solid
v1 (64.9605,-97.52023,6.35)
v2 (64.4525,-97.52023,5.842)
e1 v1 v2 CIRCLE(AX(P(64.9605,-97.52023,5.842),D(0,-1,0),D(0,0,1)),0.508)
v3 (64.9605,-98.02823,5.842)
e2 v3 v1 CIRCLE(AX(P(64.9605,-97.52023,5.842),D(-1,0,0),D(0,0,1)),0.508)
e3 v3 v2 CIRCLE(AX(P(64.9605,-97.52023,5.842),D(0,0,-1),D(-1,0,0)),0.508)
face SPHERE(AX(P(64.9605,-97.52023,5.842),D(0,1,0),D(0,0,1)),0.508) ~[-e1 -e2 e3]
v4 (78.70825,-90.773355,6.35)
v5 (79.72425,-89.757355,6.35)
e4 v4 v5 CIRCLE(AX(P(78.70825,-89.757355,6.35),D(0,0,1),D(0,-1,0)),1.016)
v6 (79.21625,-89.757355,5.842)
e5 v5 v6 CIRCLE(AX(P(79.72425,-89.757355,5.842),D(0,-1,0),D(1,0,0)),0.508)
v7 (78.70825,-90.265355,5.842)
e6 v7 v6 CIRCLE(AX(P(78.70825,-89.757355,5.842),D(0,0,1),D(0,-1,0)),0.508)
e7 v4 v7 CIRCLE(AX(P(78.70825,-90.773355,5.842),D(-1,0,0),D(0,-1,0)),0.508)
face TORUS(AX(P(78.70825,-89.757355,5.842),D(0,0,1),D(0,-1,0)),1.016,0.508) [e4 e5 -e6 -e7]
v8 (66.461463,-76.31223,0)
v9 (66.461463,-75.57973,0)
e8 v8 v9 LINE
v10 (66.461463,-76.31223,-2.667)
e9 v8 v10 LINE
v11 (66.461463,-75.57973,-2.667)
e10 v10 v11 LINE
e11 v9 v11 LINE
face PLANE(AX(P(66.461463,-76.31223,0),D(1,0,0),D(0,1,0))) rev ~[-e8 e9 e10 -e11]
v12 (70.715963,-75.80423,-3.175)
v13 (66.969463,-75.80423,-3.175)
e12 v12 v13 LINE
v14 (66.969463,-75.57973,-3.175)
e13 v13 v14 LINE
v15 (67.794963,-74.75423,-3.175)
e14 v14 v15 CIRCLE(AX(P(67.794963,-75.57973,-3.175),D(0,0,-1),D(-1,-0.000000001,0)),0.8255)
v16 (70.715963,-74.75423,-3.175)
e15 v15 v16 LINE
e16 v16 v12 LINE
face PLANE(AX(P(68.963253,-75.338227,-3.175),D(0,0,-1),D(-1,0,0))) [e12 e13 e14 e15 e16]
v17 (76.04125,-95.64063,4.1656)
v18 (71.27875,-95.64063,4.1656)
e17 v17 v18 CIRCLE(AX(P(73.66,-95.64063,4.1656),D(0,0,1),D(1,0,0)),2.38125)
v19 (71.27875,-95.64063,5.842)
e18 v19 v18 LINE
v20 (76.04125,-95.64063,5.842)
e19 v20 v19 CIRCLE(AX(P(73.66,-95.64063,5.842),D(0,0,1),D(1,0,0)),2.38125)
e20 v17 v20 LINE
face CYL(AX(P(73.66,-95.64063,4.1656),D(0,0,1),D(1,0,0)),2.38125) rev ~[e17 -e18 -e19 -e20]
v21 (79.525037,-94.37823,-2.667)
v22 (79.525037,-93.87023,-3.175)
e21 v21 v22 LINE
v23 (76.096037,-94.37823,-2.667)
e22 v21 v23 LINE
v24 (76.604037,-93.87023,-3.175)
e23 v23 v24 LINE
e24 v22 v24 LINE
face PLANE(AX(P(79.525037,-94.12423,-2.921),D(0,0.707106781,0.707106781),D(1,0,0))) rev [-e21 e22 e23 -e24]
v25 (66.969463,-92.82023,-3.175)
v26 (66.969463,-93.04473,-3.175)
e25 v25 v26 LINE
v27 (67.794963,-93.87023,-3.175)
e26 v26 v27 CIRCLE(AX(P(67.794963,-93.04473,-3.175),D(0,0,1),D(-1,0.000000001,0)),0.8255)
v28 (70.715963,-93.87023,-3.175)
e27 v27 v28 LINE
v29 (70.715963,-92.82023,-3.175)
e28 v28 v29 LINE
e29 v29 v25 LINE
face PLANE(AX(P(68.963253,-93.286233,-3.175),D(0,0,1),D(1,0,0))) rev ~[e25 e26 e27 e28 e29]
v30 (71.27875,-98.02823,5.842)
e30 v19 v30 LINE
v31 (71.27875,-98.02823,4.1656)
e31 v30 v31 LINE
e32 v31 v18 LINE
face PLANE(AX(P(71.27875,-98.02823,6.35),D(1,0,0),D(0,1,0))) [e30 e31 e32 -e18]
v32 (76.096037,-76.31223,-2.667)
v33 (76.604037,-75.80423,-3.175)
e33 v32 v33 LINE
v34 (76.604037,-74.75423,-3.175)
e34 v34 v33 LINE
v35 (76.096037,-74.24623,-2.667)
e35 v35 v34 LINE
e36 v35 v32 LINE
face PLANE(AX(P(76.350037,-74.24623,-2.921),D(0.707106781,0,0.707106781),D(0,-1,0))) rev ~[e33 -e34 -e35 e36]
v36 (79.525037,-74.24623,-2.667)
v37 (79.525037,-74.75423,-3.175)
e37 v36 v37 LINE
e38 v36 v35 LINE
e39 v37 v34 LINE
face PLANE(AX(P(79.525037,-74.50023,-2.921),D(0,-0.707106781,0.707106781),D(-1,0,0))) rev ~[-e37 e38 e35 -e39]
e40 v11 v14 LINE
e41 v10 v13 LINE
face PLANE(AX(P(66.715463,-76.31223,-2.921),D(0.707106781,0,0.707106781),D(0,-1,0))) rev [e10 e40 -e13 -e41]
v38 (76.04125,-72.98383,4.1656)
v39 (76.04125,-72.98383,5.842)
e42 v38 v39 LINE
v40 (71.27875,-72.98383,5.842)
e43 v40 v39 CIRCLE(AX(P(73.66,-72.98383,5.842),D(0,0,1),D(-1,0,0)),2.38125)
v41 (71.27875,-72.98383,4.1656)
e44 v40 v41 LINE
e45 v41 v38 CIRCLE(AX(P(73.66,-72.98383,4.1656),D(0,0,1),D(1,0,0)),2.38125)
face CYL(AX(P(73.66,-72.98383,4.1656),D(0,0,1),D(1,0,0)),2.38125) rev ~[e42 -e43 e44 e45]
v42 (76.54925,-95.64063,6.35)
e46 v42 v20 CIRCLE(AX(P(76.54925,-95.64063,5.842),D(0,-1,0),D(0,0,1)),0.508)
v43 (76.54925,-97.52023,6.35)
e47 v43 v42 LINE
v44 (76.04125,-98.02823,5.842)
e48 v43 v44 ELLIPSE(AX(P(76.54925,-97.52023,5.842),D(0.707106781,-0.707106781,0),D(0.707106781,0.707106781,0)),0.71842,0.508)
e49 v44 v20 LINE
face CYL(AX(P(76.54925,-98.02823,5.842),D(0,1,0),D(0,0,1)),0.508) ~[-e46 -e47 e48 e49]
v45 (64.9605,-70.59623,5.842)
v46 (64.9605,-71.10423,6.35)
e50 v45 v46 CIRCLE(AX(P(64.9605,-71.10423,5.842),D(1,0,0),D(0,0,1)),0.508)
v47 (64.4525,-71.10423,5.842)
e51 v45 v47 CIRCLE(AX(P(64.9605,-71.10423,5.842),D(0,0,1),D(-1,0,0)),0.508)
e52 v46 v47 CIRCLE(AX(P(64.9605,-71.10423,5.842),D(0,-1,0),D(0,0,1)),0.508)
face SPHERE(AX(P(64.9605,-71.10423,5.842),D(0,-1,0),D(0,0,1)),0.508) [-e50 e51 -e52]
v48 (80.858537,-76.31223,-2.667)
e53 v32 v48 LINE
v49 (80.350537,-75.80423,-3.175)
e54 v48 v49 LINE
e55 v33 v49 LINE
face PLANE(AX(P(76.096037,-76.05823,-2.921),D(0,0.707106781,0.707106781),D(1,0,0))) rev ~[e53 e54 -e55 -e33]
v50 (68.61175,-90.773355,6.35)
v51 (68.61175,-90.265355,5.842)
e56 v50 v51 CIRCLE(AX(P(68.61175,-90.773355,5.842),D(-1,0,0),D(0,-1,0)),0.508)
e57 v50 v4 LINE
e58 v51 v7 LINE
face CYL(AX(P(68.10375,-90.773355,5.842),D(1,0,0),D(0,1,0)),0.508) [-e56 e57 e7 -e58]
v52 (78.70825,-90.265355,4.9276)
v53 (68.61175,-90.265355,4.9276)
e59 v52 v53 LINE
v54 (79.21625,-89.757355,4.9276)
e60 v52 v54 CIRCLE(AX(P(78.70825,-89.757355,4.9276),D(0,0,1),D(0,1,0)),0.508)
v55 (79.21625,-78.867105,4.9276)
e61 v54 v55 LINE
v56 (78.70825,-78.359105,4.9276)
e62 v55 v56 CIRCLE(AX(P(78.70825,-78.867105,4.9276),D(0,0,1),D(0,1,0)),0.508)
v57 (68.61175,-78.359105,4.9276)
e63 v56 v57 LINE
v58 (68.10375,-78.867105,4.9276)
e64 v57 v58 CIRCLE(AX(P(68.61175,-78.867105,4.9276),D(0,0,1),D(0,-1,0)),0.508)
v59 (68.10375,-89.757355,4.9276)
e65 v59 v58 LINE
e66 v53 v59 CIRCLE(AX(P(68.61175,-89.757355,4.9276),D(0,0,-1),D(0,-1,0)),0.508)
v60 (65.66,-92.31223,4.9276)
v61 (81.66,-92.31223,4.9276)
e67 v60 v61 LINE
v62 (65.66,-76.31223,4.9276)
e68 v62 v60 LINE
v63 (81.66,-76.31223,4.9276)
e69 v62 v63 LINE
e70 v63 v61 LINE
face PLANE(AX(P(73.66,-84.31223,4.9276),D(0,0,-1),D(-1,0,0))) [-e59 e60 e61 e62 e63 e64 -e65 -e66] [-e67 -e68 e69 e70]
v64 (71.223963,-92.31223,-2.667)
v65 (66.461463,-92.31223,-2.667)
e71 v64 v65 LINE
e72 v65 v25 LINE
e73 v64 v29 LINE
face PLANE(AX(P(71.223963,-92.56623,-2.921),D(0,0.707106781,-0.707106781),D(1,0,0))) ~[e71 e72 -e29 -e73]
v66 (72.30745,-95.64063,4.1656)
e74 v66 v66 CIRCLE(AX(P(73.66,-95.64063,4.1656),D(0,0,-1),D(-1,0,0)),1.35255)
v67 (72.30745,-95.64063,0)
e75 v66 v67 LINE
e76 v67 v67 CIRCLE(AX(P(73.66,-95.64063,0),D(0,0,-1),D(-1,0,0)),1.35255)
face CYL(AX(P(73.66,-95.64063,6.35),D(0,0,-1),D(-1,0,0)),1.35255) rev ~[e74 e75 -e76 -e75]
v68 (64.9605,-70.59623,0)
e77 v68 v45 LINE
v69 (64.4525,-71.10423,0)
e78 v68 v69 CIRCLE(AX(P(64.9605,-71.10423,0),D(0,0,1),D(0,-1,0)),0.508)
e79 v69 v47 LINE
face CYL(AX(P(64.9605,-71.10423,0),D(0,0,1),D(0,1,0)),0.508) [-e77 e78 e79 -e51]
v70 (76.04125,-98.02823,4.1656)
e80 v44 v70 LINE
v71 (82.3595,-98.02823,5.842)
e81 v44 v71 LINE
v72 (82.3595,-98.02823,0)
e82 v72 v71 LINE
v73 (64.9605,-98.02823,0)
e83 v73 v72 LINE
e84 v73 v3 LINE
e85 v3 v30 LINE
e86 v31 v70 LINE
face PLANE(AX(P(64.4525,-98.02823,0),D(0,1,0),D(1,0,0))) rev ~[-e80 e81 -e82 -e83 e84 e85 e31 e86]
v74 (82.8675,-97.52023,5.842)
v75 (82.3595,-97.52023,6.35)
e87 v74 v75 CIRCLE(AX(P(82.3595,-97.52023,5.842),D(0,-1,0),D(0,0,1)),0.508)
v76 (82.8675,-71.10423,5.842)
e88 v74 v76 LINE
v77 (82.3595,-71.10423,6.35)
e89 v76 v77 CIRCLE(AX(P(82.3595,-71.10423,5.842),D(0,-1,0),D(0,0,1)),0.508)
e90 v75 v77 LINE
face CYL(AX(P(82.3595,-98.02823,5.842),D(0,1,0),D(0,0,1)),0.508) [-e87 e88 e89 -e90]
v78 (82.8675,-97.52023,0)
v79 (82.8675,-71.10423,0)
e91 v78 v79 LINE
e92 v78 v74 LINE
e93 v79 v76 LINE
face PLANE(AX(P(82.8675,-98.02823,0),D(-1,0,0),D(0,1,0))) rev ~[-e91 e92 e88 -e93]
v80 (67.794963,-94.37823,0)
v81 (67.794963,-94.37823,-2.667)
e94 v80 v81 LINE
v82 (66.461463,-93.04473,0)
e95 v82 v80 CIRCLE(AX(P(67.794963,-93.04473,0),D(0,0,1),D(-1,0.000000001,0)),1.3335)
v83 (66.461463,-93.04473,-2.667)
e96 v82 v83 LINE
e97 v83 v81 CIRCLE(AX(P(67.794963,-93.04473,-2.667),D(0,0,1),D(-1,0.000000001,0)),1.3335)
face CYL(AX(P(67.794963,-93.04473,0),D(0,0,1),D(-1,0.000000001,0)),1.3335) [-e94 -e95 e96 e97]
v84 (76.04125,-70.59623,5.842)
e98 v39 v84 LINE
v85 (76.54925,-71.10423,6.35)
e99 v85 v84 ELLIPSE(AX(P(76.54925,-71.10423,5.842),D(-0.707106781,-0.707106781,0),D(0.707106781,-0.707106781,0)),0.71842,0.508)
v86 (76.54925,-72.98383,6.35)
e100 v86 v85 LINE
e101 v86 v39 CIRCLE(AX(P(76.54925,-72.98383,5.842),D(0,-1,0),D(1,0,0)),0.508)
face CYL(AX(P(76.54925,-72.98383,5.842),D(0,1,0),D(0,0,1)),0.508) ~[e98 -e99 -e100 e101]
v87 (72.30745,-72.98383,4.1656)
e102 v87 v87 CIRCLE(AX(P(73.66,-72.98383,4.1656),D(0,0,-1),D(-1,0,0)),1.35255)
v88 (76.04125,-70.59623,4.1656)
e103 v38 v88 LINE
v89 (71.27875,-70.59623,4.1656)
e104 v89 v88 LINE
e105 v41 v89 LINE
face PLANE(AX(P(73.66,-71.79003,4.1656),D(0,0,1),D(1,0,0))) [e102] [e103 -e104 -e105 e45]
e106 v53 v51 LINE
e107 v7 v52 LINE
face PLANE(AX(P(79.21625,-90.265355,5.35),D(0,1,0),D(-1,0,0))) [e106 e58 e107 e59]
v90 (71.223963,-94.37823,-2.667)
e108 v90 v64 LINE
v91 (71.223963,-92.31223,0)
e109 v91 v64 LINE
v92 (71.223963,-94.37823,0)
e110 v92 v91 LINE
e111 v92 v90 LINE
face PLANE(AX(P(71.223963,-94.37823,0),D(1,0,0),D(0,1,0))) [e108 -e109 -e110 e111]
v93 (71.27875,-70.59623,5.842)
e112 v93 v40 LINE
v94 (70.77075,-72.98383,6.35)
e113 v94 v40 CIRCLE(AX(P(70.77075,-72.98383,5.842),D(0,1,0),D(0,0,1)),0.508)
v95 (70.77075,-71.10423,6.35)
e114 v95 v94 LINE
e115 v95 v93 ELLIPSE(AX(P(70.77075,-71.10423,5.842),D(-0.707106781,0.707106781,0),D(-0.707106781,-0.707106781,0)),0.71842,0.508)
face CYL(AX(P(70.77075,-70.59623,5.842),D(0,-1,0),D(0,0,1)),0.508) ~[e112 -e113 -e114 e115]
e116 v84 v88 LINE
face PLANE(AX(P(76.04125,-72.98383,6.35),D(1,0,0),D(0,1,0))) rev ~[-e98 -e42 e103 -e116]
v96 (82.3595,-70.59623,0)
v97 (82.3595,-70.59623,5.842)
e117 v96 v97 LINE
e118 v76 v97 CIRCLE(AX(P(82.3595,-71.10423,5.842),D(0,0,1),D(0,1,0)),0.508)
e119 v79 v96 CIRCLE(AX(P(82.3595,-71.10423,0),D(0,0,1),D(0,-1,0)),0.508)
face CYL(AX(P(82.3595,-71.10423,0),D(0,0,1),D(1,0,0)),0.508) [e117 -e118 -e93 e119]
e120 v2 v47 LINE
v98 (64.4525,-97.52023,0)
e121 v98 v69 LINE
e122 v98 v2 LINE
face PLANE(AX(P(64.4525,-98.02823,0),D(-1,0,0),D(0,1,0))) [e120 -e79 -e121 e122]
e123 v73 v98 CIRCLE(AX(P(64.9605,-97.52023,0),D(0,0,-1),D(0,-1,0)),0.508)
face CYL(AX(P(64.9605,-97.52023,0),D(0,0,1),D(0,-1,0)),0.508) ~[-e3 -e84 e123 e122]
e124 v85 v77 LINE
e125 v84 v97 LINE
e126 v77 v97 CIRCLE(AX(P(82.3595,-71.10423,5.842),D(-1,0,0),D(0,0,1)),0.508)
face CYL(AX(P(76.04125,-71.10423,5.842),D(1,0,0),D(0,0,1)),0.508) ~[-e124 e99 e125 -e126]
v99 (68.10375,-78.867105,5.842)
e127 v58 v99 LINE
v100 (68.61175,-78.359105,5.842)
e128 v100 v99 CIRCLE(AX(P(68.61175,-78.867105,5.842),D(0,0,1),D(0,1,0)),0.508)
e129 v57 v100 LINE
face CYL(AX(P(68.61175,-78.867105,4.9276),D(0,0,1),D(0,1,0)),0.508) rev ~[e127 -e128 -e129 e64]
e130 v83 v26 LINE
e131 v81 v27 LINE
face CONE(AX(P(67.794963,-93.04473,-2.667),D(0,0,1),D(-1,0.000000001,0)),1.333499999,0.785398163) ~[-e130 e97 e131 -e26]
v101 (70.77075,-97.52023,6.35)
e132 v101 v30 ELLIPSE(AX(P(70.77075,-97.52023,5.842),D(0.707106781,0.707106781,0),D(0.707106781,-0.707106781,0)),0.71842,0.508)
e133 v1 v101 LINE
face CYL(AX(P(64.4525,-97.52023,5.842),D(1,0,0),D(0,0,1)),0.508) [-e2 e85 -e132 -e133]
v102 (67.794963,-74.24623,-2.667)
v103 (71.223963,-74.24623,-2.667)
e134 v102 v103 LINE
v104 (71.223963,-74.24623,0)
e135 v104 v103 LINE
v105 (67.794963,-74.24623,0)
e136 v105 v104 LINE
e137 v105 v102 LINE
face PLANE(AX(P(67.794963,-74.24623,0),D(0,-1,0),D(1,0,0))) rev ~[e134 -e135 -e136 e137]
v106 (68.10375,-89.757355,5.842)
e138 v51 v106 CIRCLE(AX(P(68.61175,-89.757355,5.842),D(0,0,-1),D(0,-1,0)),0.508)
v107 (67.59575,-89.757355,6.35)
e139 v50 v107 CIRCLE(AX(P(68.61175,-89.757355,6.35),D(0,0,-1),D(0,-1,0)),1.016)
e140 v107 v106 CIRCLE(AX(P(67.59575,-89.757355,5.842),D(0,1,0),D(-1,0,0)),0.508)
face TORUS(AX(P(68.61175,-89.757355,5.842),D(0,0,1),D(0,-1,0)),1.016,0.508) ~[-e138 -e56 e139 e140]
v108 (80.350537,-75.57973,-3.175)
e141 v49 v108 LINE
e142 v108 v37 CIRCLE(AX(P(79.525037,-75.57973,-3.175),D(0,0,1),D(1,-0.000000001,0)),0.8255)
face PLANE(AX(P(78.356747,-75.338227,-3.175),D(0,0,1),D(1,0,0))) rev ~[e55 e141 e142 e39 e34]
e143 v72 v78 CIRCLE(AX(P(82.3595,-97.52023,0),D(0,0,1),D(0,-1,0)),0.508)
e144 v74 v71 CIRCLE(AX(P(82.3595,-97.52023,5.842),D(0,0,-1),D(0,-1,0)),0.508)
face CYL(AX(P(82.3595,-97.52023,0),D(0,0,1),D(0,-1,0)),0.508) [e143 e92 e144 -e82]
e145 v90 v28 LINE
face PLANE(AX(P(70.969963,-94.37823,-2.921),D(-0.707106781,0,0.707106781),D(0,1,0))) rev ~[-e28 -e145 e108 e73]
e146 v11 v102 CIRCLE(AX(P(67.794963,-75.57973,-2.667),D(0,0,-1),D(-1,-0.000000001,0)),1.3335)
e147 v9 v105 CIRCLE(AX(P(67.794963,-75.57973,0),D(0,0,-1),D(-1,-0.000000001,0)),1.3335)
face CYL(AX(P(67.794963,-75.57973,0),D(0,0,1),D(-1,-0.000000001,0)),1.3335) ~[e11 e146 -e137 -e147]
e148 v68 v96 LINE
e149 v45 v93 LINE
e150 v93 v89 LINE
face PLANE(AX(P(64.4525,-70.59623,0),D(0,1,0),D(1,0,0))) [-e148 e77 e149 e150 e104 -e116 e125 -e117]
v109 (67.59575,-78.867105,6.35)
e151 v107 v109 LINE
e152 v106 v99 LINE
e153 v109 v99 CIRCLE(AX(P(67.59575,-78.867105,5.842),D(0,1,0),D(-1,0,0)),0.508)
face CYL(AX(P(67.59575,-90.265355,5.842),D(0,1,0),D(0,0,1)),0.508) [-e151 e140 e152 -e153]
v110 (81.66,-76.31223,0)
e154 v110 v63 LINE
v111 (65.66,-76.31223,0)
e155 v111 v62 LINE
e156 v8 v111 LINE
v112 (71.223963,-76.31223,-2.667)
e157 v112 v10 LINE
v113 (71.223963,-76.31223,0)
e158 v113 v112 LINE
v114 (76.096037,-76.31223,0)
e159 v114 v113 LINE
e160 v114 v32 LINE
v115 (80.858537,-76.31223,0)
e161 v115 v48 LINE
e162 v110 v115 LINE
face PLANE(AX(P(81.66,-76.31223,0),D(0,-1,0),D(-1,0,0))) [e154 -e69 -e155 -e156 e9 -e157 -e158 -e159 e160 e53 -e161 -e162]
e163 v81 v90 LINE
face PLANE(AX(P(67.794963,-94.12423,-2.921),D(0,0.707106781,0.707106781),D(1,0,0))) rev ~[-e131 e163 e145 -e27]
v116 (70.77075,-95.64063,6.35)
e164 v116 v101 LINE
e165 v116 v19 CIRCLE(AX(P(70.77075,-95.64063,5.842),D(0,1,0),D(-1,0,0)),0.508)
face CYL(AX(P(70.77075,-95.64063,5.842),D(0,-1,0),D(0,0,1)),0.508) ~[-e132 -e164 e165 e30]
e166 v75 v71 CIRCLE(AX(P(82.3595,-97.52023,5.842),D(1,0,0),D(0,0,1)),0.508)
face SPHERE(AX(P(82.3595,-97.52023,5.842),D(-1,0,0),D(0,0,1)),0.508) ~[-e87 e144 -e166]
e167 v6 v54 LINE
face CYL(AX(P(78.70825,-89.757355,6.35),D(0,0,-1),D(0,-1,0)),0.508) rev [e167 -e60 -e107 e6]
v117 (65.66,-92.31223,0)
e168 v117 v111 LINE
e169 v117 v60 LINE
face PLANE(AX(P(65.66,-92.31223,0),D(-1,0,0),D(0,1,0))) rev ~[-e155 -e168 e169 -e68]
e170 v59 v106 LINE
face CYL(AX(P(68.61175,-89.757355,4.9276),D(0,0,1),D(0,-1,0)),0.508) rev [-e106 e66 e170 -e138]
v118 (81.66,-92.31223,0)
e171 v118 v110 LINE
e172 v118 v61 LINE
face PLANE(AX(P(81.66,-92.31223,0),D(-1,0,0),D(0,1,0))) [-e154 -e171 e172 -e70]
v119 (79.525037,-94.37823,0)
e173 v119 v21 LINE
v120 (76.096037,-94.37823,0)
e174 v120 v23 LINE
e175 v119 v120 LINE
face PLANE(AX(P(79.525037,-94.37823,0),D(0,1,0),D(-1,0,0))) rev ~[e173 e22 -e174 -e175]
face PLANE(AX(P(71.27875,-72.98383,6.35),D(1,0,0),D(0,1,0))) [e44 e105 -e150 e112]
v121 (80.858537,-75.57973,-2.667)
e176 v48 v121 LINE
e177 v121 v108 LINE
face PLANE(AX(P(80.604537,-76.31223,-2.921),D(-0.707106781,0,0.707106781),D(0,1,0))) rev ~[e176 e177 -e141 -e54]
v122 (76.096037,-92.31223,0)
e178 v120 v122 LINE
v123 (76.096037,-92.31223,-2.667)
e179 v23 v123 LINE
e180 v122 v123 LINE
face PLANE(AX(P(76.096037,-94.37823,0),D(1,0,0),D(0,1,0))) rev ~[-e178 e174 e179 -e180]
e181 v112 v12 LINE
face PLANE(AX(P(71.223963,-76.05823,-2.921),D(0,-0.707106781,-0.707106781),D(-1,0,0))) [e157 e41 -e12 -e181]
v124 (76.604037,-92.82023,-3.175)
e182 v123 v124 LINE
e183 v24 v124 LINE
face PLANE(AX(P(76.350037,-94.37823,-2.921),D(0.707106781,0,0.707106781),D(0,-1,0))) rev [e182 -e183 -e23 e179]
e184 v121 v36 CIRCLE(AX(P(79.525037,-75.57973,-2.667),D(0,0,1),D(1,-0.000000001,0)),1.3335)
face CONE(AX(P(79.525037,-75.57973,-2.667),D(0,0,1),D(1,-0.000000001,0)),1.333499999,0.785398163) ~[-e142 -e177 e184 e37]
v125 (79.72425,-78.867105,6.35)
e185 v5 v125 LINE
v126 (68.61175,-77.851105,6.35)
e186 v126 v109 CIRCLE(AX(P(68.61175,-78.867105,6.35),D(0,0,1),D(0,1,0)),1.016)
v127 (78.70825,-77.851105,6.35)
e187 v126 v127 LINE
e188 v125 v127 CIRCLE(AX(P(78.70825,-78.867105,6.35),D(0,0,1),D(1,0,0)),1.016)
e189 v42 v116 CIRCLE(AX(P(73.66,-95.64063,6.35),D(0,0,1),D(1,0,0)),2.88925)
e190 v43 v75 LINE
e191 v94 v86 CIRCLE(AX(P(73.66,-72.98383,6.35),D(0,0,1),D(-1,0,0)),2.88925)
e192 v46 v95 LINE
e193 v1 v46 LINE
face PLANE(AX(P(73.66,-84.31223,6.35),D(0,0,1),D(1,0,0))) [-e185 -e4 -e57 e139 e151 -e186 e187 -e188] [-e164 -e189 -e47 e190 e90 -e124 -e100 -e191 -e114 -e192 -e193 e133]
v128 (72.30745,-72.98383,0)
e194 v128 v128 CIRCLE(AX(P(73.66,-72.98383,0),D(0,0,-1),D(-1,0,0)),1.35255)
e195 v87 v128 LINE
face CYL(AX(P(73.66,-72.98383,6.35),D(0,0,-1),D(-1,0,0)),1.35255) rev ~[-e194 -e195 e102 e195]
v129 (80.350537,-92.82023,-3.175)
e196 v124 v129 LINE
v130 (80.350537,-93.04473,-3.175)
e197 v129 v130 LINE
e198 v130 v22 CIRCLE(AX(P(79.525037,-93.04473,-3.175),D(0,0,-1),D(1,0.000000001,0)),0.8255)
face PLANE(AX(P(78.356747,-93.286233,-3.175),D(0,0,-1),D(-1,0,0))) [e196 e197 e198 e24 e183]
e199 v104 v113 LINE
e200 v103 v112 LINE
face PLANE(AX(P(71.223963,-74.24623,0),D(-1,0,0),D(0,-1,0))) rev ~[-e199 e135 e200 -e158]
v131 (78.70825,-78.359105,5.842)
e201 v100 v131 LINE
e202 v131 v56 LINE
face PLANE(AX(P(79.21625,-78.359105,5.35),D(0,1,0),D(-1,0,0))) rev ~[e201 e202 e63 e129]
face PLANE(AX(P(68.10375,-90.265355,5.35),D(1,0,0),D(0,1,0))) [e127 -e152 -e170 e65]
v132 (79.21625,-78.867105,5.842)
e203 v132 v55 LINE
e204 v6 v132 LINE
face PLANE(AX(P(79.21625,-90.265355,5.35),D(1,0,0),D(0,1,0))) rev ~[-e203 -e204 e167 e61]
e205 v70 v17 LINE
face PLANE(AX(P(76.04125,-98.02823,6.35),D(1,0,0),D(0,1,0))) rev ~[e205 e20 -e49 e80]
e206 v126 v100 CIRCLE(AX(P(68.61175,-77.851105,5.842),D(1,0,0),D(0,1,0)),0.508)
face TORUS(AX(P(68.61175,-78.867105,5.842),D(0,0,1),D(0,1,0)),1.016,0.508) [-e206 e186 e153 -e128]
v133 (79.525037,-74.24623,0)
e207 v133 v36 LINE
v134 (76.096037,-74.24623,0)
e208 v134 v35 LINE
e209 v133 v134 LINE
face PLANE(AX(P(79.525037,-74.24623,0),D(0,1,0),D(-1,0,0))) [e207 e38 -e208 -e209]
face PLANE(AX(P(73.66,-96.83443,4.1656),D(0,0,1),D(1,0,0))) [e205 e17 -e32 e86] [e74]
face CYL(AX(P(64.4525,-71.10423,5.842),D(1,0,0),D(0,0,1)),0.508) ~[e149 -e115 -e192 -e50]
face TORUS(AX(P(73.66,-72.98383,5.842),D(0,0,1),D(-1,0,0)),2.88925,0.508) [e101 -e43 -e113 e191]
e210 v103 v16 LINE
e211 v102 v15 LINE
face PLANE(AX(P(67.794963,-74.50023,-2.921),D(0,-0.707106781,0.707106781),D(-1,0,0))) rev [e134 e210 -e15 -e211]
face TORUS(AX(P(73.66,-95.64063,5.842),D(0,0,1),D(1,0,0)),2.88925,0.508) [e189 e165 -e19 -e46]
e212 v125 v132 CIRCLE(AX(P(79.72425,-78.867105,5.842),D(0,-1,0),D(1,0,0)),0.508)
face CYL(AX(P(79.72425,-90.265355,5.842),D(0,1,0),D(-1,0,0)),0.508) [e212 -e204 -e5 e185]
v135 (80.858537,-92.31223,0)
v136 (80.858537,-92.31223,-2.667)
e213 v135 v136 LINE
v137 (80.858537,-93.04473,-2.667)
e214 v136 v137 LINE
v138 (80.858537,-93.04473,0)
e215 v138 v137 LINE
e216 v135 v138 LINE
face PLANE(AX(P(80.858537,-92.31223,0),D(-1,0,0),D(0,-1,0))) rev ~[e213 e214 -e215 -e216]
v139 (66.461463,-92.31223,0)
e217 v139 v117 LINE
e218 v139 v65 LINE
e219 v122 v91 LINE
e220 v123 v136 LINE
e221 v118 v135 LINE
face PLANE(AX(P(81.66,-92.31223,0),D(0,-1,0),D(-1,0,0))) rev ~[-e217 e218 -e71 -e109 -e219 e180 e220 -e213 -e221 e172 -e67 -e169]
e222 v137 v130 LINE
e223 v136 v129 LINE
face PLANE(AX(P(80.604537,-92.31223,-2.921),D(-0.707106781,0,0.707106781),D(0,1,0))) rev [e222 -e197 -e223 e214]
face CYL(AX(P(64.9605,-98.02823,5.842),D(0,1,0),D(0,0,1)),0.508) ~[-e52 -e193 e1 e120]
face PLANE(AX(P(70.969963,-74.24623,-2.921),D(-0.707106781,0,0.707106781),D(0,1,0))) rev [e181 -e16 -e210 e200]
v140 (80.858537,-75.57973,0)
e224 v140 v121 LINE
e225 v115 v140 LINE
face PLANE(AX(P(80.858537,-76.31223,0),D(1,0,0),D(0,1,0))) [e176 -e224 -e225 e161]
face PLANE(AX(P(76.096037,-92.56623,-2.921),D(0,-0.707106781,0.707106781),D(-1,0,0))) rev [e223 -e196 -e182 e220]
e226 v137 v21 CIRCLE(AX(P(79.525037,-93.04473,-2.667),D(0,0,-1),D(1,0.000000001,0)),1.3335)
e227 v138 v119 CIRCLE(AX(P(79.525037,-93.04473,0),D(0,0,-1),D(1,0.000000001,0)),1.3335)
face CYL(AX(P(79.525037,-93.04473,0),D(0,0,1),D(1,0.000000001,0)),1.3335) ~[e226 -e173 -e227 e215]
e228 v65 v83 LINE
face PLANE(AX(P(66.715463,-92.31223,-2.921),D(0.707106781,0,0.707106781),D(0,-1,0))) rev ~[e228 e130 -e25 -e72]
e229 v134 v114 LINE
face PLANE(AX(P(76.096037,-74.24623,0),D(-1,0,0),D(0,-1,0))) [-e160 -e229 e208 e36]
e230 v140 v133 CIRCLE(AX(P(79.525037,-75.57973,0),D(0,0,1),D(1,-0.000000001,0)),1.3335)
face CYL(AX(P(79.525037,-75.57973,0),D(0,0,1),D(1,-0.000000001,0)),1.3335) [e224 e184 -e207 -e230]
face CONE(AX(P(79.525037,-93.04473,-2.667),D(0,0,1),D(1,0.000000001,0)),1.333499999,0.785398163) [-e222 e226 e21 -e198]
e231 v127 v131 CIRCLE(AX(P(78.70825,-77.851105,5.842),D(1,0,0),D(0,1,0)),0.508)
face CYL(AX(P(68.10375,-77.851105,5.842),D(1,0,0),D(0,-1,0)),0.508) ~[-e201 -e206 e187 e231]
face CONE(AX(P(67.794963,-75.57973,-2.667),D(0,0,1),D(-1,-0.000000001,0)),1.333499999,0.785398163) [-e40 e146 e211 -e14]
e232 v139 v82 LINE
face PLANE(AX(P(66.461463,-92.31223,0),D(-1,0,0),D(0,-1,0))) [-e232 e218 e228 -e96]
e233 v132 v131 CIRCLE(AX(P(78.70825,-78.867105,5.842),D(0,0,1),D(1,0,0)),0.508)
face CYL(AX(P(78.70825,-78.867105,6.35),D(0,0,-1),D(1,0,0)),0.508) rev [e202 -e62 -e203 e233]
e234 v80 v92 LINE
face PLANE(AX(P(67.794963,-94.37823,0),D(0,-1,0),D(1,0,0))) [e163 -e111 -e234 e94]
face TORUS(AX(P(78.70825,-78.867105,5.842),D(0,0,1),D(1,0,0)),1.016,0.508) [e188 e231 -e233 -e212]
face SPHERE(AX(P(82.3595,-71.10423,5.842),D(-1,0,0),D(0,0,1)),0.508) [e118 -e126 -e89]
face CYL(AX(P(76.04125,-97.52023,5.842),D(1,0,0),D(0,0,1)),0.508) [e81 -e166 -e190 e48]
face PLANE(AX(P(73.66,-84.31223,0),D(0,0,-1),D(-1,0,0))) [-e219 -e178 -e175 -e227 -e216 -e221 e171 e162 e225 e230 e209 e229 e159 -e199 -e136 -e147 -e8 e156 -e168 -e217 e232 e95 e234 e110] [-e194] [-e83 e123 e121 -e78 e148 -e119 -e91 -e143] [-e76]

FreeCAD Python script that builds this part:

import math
import FreeCAD as App
import Part
import Sketcher
Q = App.Units.Quantity


def edges_at(feature, points):
    """Names of the edges that pass closest to the given points."""
    edges = feature.Shape.Edges
    near = lambda p: min(range(len(edges)), key=lambda i: edges[i].distToShape(Part.Vertex(*p))[0])
    return sorted({f"Edge{near(p) + 1}" for p in points})


def faces_at(feature, points):
    """Names of the faces that lie closest to the given points."""
    faces = feature.Shape.Faces
    near = lambda p: min(range(len(faces)), key=lambda i: faces[i].distToShape(Part.Vertex(*p))[0])
    return sorted({f"Face{near(p) + 1}" for p in points})

doc = App.newDocument("Part")
body = doc.addObject("PartDesign::Body", "Body")

# Sketch on XY plane
sketch1 = doc.addObject("Sketcher::SketchObject", "Sketch")
body.addObject(sketch1)
sketch1.AttachmentSupport = (doc.XY_Plane, [""])
sketch1.MapMode = "FlatFace"
sketch1.addGeometry([
    Part.LineSegment(App.Vector(64, -71, 0), App.Vector(64, -98, 0)),
    Part.LineSegment(App.Vector(64, -98, 0), App.Vector(83, -98, 0)),
    Part.LineSegment(App.Vector(83, -98, 0), App.Vector(83, -71, 0)),
    Part.LineSegment(App.Vector(83, -71, 0), App.Vector(64, -71, 0)),
], False)
sketch1.addConstraint([
    Sketcher.Constraint("Coincident", 0, 2, 1, 1),
    Sketcher.Constraint("Coincident", 1, 2, 2, 1),
    Sketcher.Constraint("Coincident", 2, 2, 3, 1),
    Sketcher.Constraint("Coincident", 3, 2, 0, 1),
    Sketcher.Constraint("Vertical", 0),
    Sketcher.Constraint("Horizontal", 1),
    Sketcher.Constraint("Vertical", 2),
    Sketcher.Constraint("Horizontal", 3),
    Sketcher.Constraint("DistanceY", 0, 2, 0, 1, Q("1.08 in")),
    Sketcher.Constraint("DistanceX", 1, 1, 1, 2, Q("0.725 in")),
    Sketcher.Constraint("DistanceX", -1, 1, 0, 2, Q("2.5375 in")),
    Sketcher.Constraint("DistanceY", 0, 2, -1, 1, Q("98.02823 mm")),
])
pad1 = doc.addObject("PartDesign::Pad", "Pad")
body.addObject(pad1)
pad1.Profile = sketch1
pad1.Length = Q("0.25 in")

# Sketch on XY plane
sketch2 = doc.addObject("Sketcher::SketchObject", "Sketch001")
body.addObject(sketch2)
sketch2.AttachmentSupport = (doc.XY_Plane, [""])
sketch2.MapMode = "FlatFace"
sketch2.AttachmentOffset = App.Placement(App.Vector(0, 0, 0.25 * 25.4), App.Rotation())
sketch2.addGeometry([
    Part.LineSegment(App.Vector(68, -78, 0), App.Vector(68, -90, 0)),
    Part.LineSegment(App.Vector(68, -90, 0), App.Vector(79, -90, 0)),
    Part.LineSegment(App.Vector(79, -90, 0), App.Vector(79, -78, 0)),
    Part.LineSegment(App.Vector(79, -78, 0), App.Vector(68, -78, 0)),
], False)
sketch2.addConstraint([
    Sketcher.Constraint("Coincident", 0, 2, 1, 1),
    Sketcher.Constraint("Coincident", 1, 2, 2, 1),
    Sketcher.Constraint("Coincident", 2, 2, 3, 1),
    Sketcher.Constraint("Coincident", 3, 2, 0, 1),
    Sketcher.Constraint("Vertical", 0),
    Sketcher.Constraint("Horizontal", 1),
    Sketcher.Constraint("Vertical", 2),
    Sketcher.Constraint("Horizontal", 3),
    Sketcher.Constraint("DistanceX", 1, 1, 1, 2, Q("0.4375 in")),
    Sketcher.Constraint("DistanceY", 0, 2, 0, 1, Q("0.46875 in")),
    Sketcher.Constraint("DistanceX", -1, 1, 0, 2, Q("68.10375 mm")),
    Sketcher.Constraint("DistanceY", 0, 2, -1, 1, Q("90.265355 mm")),
])
pocket1 = doc.addObject("PartDesign::Pocket", "Pocket")
body.addObject(pocket1)
pocket1.Profile = sketch2
pocket1.Type = "ThroughAll"
doc.recompute()

thickness = doc.addObject("PartDesign::Thickness", "Thickness")
body.addObject(thickness)
thickness.Base = (pocket1, faces_at(pocket1, [
    (73.66, -90.265, 3.175),
    (68.104, -84.312, 3.175),
    (73.66, -78.359, 3.175),
    (79.216, -84.312, 3.175),
    (66.294, -84.312, 0),
]))
thickness.Value = 1
thickness.Reversed = True
thickness.Join = "Intersection"

# Sketch on XY plane
sketch3 = doc.addObject("Sketcher::SketchObject", "Sketch002")
body.addObject(sketch3)
sketch3.AttachmentSupport = (doc.XY_Plane, [""])
sketch3.MapMode = "FlatFace"
sketch3.addGeometry([
    Part.LineSegment(App.Vector(77, -71, 0), App.Vector(77, -76, 0)),
    Part.LineSegment(App.Vector(77, -76, 0), App.Vector(71, -76, 0)),
    Part.LineSegment(App.Vector(71, -76, 0), App.Vector(71, -71, 0)),
    Part.LineSegment(App.Vector(71, -71, 0), App.Vector(77, -71, 0)),
], False)
sketch3.addConstraint([
    Sketcher.Constraint("Coincident", 0, 2, 1, 1),
    Sketcher.Constraint("Coincident", 1, 2, 2, 1),
    Sketcher.Constraint("Coincident", 2, 2, 3, 1),
    Sketcher.Constraint("Coincident", 3, 2, 0, 1),
    Sketcher.Constraint("Vertical", 0),
    Sketcher.Constraint("Horizontal", 1),
    Sketcher.Constraint("Vertical", 2),
    Sketcher.Constraint("Horizontal", 3),
    Sketcher.Constraint("Equal", 3, 0),
    Sketcher.Constraint("DistanceX", 1, 2, 1, 1, Q("5.7752 mm")),
    Sketcher.Constraint("DistanceX", -1, 1, 0, 2, Q("76.5476 mm")),
    Sketcher.Constraint("DistanceY", 0, 2, -1, 1, Q("76.37143 mm")),
])
pad2 = doc.addObject("PartDesign::Pad", "Pad001")
body.addObject(pad2)
pad2.Profile = sketch3
pad2.Type = "UpToFirst"

# Sketch on XY plane
sketch4 = doc.addObject("Sketcher::SketchObject", "Sketch003")
body.addObject(sketch4)
sketch4.AttachmentSupport = (doc.XY_Plane, [""])
sketch4.MapMode = "FlatFace"
sketch4.addGeometry([
    Part.LineSegment(App.Vector(77, -92, 0), App.Vector(77, -98, 0)),
    Part.LineSegment(App.Vector(77, -98, 0), App.Vector(71, -98, 0)),
    Part.LineSegment(App.Vector(71, -98, 0), App.Vector(71, -92, 0)),
    Part.LineSegment(App.Vector(71, -92, 0), App.Vector(77, -92, 0)),
], False)
sketch4.addConstraint([
    Sketcher.Constraint("Coincident", 0, 2, 1, 1),
    Sketcher.Constraint("Coincident", 1, 2, 2, 1),
    Sketcher.Constraint("Coincident", 2, 2, 3, 1),
    Sketcher.Constraint("Coincident", 3, 2, 0, 1),
    Sketcher.Constraint("Vertical", 0),
    Sketcher.Constraint("Horizontal", 1),
    Sketcher.Constraint("Vertical", 2),
    Sketcher.Constraint("Horizontal", 3),
    Sketcher.Constraint("Equal", 3, 0),
    Sketcher.Constraint("DistanceX", 1, 2, 1, 1, Q("5.7752 mm")),
    Sketcher.Constraint("DistanceX", -1, 1, 0, 2, Q("76.5476 mm")),
    Sketcher.Constraint("DistanceY", 0, 2, -1, 1, Q("98.02823 mm")),
])
pad3 = doc.addObject("PartDesign::Pad", "Pad002")
body.addObject(pad3)
pad3.Profile = sketch4
pad3.Type = "UpToFirst"

# Sketch on XY plane
sketch5 = doc.addObject("Sketcher::SketchObject", "Sketch004")
body.addObject(sketch5)
sketch5.AttachmentSupport = (doc.XY_Plane, [""])
sketch5.MapMode = "FlatFace"
sketch5.AttachmentOffset = App.Placement(App.Vector(0, 0, 0.25 * 25.4), App.Rotation())
sketch5.addGeometry([
    Part.Circle(App.Vector(73.7, -95.6, 0), App.Vector(0, 0, 1), 1.4),
    Part.Circle(App.Vector(73.7, -73, 0), App.Vector(0, 0, 1), 1.4),
], False)
sketch5.addConstraint([
    Sketcher.Constraint("Equal", 0, 1),
    Sketcher.Constraint("Vertical", 0, 3, 1, 3),
    Sketcher.Constraint("Diameter", 0, Q("0.1065 in")),
    Sketcher.Constraint("DistanceX", -1, 1, 0, 3, Q("2.9 in")),
    Sketcher.Constraint("DistanceY", 0, 3, 1, 3, Q("0.892 in")),
    Sketcher.Constraint("DistanceY", 0, 3, -1, 1, Q("95.64063 mm")),
])
doc.recompute()
hole = doc.addObject("PartDesign::Hole", "Hole")
body.addObject(hole)
hole.Profile = sketch5
hole.ThreadType = "None"
hole.Diameter = Q("0.1065 in")
hole.DepthType = "ThroughAll"
hole.HoleCutType = "Counterbore"
hole.HoleCutDiameter = Q("0.1875 in")
hole.HoleCutDepth = Q("0.086 in")

# Sketch on XY plane
sketch6 = doc.addObject("Sketcher::SketchObject", "Sketch005")
body.addObject(sketch6)
sketch6.AttachmentSupport = (doc.XY_Plane, [""])
sketch6.MapMode = "FlatFace"
sketch6.addGeometry([
    Part.LineSegment(App.Vector(76.8, -95.64, 0), App.Vector(76.55, -95.64, 0)),  # 0
    Part.ArcOfCircle(Part.Circle(App.Vector(73.66, -95.64, 0), App.Vector(0, 0, 1), 2.89), math.radians(0), math.radians(180)),  # 1
    Part.LineSegment(App.Vector(70.77, -95.64, 0), App.Vector(70.52, -95.64, 0)),  # 2
    Part.LineSegment(App.Vector(70.52, -95.64, 0), App.Vector(70.52, -92.25, 0)),  # 3
    Part.LineSegment(App.Vector(70.52, -92.25, 0), App.Vector(76.8, -92.25, 0)),  # 4
    Part.LineSegment(App.Vector(76.8, -92.25, 0), App.Vector(76.8, -95.64, 0)),  # 5
    Part.LineSegment(App.Vector(76.8, -72.98, 0), App.Vector(76.8, -76.37, 0)),  # 6
    Part.LineSegment(App.Vector(76.8, -76.37, 0), App.Vector(70.52, -76.37, 0)),  # 7
    Part.LineSegment(App.Vector(70.52, -76.37, 0), App.Vector(70.52, -72.98, 0)),  # 8
    Part.LineSegment(App.Vector(70.52, -72.98, 0), App.Vector(70.77, -72.98, 0)),  # 9
    Part.ArcOfCircle(Part.Circle(App.Vector(73.66, -72.98, 0), App.Vector(0, 0, 1), 2.89), math.radians(180), math.radians(360)),  # 10
    Part.LineSegment(App.Vector(76.55, -72.98, 0), App.Vector(76.8, -72.98, 0)),  # 11
], False)
sketch6.addConstraint([
    Sketcher.Constraint("Coincident", 0, 2, 1, 1),
    Sketcher.Constraint("Coincident", 1, 2, 2, 1),
    Sketcher.Constraint("Coincident", 2, 2, 3, 1),
    Sketcher.Constraint("Coincident", 3, 2, 4, 1),
    Sketcher.Constraint("Coincident", 4, 2, 5, 1),
    Sketcher.Constraint("Coincident", 5, 2, 0, 1),
    Sketcher.Constraint("Coincident", 6, 2, 7, 1),
    Sketcher.Constraint("Coincident", 7, 2, 8, 1),
    Sketcher.Constraint("Coincident", 8, 2, 9, 1),
    Sketcher.Constraint("Coincident", 9, 2, 10, 1),
    Sketcher.Constraint("Coincident", 10, 2, 11, 1),
    Sketcher.Constraint("Coincident", 11, 2, 6, 1),
    Sketcher.Constraint("Horizontal", 0),
    Sketcher.Constraint("Horizontal", 2),
    Sketcher.Constraint("Vertical", 3),
    Sketcher.Constraint("Horizontal", 4),
    Sketcher.Constraint("Vertical", 5),
    Sketcher.Constraint("Vertical", 6),
    Sketcher.Constraint("Horizontal", 7),
    Sketcher.Constraint("Vertical", 8),
    Sketcher.Constraint("Horizontal", 9),
    Sketcher.Constraint("Horizontal", 11),
    Sketcher.Constraint("Equal", 1, 10),
    Sketcher.Constraint("Horizontal", 1, 3, 0, 2),
    Sketcher.Constraint("Horizontal", 0, 2, 1, 2),
    Sketcher.Constraint("Horizontal", 10, 3, 8, 2),
    Sketcher.Constraint("Horizontal", 9, 2, 10, 2),
    Sketcher.Constraint("Vertical", 1, 3, 10, 3),
    Sketcher.Constraint("Vertical", 5, 2, 6, 2),
    Sketcher.Constraint("Vertical", 3, 2, 7, 2),
    Sketcher.Constraint("Equal", 0, 2),
    Sketcher.Constraint("Equal", 5, 6),
    Sketcher.Constraint("DistanceX", 0, 2, 0, 1, Q("0.01 in")),
    Sketcher.Constraint("DistanceX", -1, 1, 1, 3, Q("2.9 in")),
    Sketcher.Constraint("Radius", 1, Q("2.8876 mm")),
    Sketcher.Constraint("DistanceY", 1, 3, 10, 3, Q("0.892 in")),
    Sketcher.Constraint("DistanceY", 3, 1, 3, 2, Q("3.3876 mm")),
    Sketcher.Constraint("DistanceY", 1, 3, -1, 1, Q("95.64063 mm")),
])
pocket2 = doc.addObject("PartDesign::Pocket", "Pocket001")
body.addObject(pocket2)
pocket2.Profile = sketch6
pocket2.Length = Q("0.194 in")
pocket2.Reversed = True

# Sketch on XY plane
sketch7 = doc.addObject("Sketcher::SketchObject", "Sketch006")
body.addObject(sketch7)
sketch7.AttachmentSupport = (doc.XY_Plane, [""])
sketch7.MapMode = "FlatFace"
sketch7.AttachmentOffset = App.Placement(App.Vector(0, 0, 5.35), App.Rotation())
sketch7.addGeometry([
    Part.LineSegment(App.Vector(70.8, -76.4, 0), App.Vector(76.5, -76.4, 0)),  # 0
    Part.LineSegment(App.Vector(76.5, -76.4, 0), App.Vector(76.5, -71.6, 0)),  # 1
    Part.LineSegment(App.Vector(76.5, -71.6, 0), App.Vector(81.9, -71.6, 0)),  # 2
    Part.LineSegment(App.Vector(81.9, -71.6, 0), App.Vector(81.9, -97, 0)),  # 3
    Part.LineSegment(App.Vector(81.9, -97, 0), App.Vector(76.5, -97, 0)),  # 4
    Part.LineSegment(App.Vector(76.5, -97, 0), App.Vector(76.5, -92.3, 0)),  # 5
    Part.LineSegment(App.Vector(76.5, -92.3, 0), App.Vector(70.8, -92.3, 0)),  # 6
    Part.LineSegment(App.Vector(70.8, -92.3, 0), App.Vector(70.8, -97, 0)),  # 7
    Part.LineSegment(App.Vector(70.8, -97, 0), App.Vector(65.5, -97, 0)),  # 8
    Part.LineSegment(App.Vector(65.5, -97, 0), App.Vector(65.5, -71.6, 0)),  # 9
    Part.LineSegment(App.Vector(65.5, -71.6, 0), App.Vector(70.8, -71.6, 0)),  # 10
    Part.LineSegment(App.Vector(70.8, -71.6, 0), App.Vector(70.8, -76.4, 0)),  # 11
    Part.LineSegment(App.Vector(68.1, -90.3, 0), App.Vector(79.2, -90.3, 0)),  # 12
    Part.LineSegment(App.Vector(79.2, -90.3, 0), App.Vector(79.2, -78.4, 0)),  # 13
    Part.LineSegment(App.Vector(79.2, -78.4, 0), App.Vector(68.1, -78.4, 0)),  # 14
    Part.LineSegment(App.Vector(68.1, -78.4, 0), App.Vector(68.1, -90.3, 0)),  # 15
], False)
sketch7.addConstraint([
    Sketcher.Constraint("Coincident", 0, 2, 1, 1),
    Sketcher.Constraint("Coincident", 1, 2, 2, 1),
    Sketcher.Constraint("Coincident", 2, 2, 3, 1),
    Sketcher.Constraint("Coincident", 3, 2, 4, 1),
    Sketcher.Constraint("Coincident", 4, 2, 5, 1),
    Sketcher.Constraint("Coincident", 5, 2, 6, 1),
    Sketcher.Constraint("Coincident", 6, 2, 7, 1),
    Sketcher.Constraint("Coincident", 7, 2, 8, 1),
    Sketcher.Constraint("Coincident", 8, 2, 9, 1),
    Sketcher.Constraint("Coincident", 9, 2, 10, 1),
    Sketcher.Constraint("Coincident", 10, 2, 11, 1),
    Sketcher.Constraint("Coincident", 11, 2, 0, 1),
    Sketcher.Constraint("Coincident", 12, 2, 13, 1),
    Sketcher.Constraint("Coincident", 13, 2, 14, 1),
    Sketcher.Constraint("Coincident", 14, 2, 15, 1),
    Sketcher.Constraint("Coincident", 15, 2, 12, 1),
    Sketcher.Constraint("Horizontal", 0),
    Sketcher.Constraint("Vertical", 1),
    Sketcher.Constraint("Horizontal", 2),
    Sketcher.Constraint("Vertical", 3),
    Sketcher.Constraint("Horizontal", 4),
    Sketcher.Constraint("Vertical", 5),
    Sketcher.Constraint("Horizontal", 6),
    Sketcher.Constraint("Vertical", 7),
    Sketcher.Constraint("Horizontal", 8),
    Sketcher.Constraint("Vertical", 9),
    Sketcher.Constraint("Horizontal", 10),
    Sketcher.Constraint("Vertical", 11),
    Sketcher.Constraint("Horizontal", 12),
    Sketcher.Constraint("Vertical", 13),
    Sketcher.Constraint("Horizontal", 14),
    Sketcher.Constraint("Vertical", 15),
    Sketcher.Constraint("Horizontal", 4, 2, 7, 2),
    Sketcher.Constraint("Horizontal", 2, 2, 9, 2),
    Sketcher.Constraint("Vertical", 1, 2, 4, 2),
    Sketcher.Constraint("Vertical", 7, 2, 10, 2),
    Sketcher.Constraint("Equal", 4, 8),
    Sketcher.Constraint("Equal", 1, 5),
    Sketcher.Constraint("DistanceX", 12, 1, 12, 2, Q("0.4375 in")),
    Sketcher.Constraint("DistanceY", 1, 1, 1, 2, Q("0.188 in")),
    Sketcher.Constraint("DistanceY", 13, 1, 13, 2, Q("0.46875 in")),
    Sketcher.Constraint("DistanceX", 0, 1, 0, 2, Q("5.7752 mm")),
    Sketcher.Constraint("DistanceX", 2, 1, 2, 2, Q("5.3199 mm")),
    Sketcher.Constraint("DistanceY", 3, 2, 3, 1, Q("25.432 mm")),
    Sketcher.Constraint("DistanceX", -1, 1, 0, 2, Q("76.5476 mm")),
    Sketcher.Constraint("DistanceY", 0, 2, -1, 1, Q("76.37143 mm")),
    Sketcher.Constraint("DistanceX", -1, 1, 12, 2, Q("79.21625 mm")),
    Sketcher.Constraint("DistanceY", 12, 2, -1, 1, Q("90.265355 mm")),
])
pad4 = doc.addObject("PartDesign::Pad", "Pad003")
body.addObject(pad4)
pad4.Profile = sketch7
pad4.Length = 0.4224
pad4.Reversed = True

# Sketch on XY plane
sketch8 = doc.addObject("Sketcher::SketchObject", "Sketch007")
body.addObject(sketch8)
sketch8.AttachmentSupport = (doc.XY_Plane, [""])
sketch8.MapMode = "FlatFace"
sketch8.AttachmentOffset = App.Placement(App.Vector(0, 0, 0.25 * 25.4), App.Rotation())
sketch8.addGeometry([
    Part.LineSegment(App.Vector(71.3, -95.6, 0), App.Vector(71.3, -98, 0)),  # 0
    Part.LineSegment(App.Vector(71.3, -98, 0), App.Vector(76, -98, 0)),  # 1
    Part.LineSegment(App.Vector(76, -98, 0), App.Vector(76, -95.6, 0)),  # 2
    Part.LineSegment(App.Vector(76, -95.6, 0), App.Vector(71.3, -95.6, 0)),  # 3
    Part.LineSegment(App.Vector(71.3, -70.6, 0), App.Vector(71.3, -73, 0)),  # 4
    Part.LineSegment(App.Vector(71.3, -73, 0), App.Vector(76, -73, 0)),  # 5
    Part.LineSegment(App.Vector(76, -73, 0), App.Vector(76, -70.6, 0)),  # 6
    Part.LineSegment(App.Vector(76, -70.6, 0), App.Vector(71.3, -70.6, 0)),  # 7
], False)
sketch8.addConstraint([
    Sketcher.Constraint("Coincident", 0, 2, 1, 1),
    Sketcher.Constraint("Coincident", 1, 2, 2, 1),
    Sketcher.Constraint("Coincident", 2, 2, 3, 1),
    Sketcher.Constraint("Coincident", 3, 2, 0, 1),
    Sketcher.Constraint("Coincident", 4, 2, 5, 1),
    Sketcher.Constraint("Coincident", 5, 2, 6, 1),
    Sketcher.Constraint("Coincident", 6, 2, 7, 1),
    Sketcher.Constraint("Coincident", 7, 2, 4, 1),
    Sketcher.Constraint("Vertical", 0),
    Sketcher.Constraint("Horizontal", 1),
    Sketcher.Constraint("Vertical", 2),
    Sketcher.Constraint("Horizontal", 3),
    Sketcher.Constraint("Vertical", 4),
    Sketcher.Constraint("Horizontal", 5),
    Sketcher.Constraint("Vertical", 6),
    Sketcher.Constraint("Horizontal", 7),
    Sketcher.Constraint("Vertical", 3, 2, 4, 2),
    Sketcher.Constraint("Vertical", 2, 2, 5, 2),
    Sketcher.Constraint("Equal", 2, 4),
    Sketcher.Constraint("DistanceX", 1, 1, 1, 2, Q("0.1875 in")),
    Sketcher.Constraint("DistanceY", 0, 2, 0, 1, Q("0.094 in")),
    Sketcher.Constraint("DistanceY", 1, 2, 6, 2, Q("1.08 in")),
    Sketcher.Constraint("DistanceX", -1, 1, 0, 2, Q("71.27875 mm")),
    Sketcher.Constraint("DistanceY", 0, 2, -1, 1, Q("98.02823 mm")),
])
pocket3 = doc.addObject("PartDesign::Pocket", "Pocket002")
body.addObject(pocket3)
pocket3.Profile = sketch8
pocket3.Length = Q("0.086 in")
doc.recompute()

fillet = doc.addObject("PartDesign::Fillet", "Fillet")
body.addObject(fillet)
fillet.Base = (pocket3, edges_at(pocket3, [
    (79.454, -70.596, 6.35),
    (73.66, -93.259, 6.35),
    (64.453, -84.312, 6.35),
    (79.216, -90.265, 5.639),
    (68.104, -90.265, 5.639),
    (68.104, -78.359, 5.639),
    (79.216, -78.359, 5.639),
    (73.66, -90.265, 6.35),
    (79.216, -84.312, 6.35),
    (73.66, -78.359, 6.35),
    (68.104, -84.312, 6.35),
    (79.454, -98.028, 6.35),
    (76.041, -96.834, 6.35),
    (71.279, -96.834, 6.35),
    (73.66, -75.365, 6.35),
    (67.866, -70.596, 6.35),
    (71.279, -71.79, 6.35),
    (76.041, -71.79, 6.35),
    (67.866, -98.028, 6.35),
    (82.868, -84.312, 6.35),
    (64.453, -98.028, 3.175),
    (64.453, -70.596, 3.175),
    (82.868, -70.596, 3.175),
    (82.868, -98.028, 3.175),
]))
fillet.Radius = Q("0.02 in")

# Sketch on XY plane
sketch9 = doc.addObject("Sketcher::SketchObject", "Sketch008")
body.addObject(sketch9)
sketch9.AttachmentSupport = (doc.XY_Plane, [""])
sketch9.MapMode = "FlatFace"
sketch9.addGeometry([
    Part.LineSegment(App.Vector(76.5, -97, 0), App.Vector(76.5, -95.6, 0)),  # 0
    Part.ArcOfCircle(Part.Circle(App.Vector(73.7, -95.6, 0), App.Vector(0, 0, 1), 2.9), math.radians(0), math.radians(180)),  # 1
    Part.LineSegment(App.Vector(70.8, -95.6, 0), App.Vector(70.8, -97, 0)),  # 2
    Part.LineSegment(App.Vector(70.8, -97, 0), App.Vector(65.5, -97, 0)),  # 3
    Part.LineSegment(App.Vector(65.5, -97, 0), App.Vector(65.5, -71.6, 0)),  # 4
    Part.LineSegment(App.Vector(65.5, -71.6, 0), App.Vector(70.8, -71.6, 0)),  # 5
    Part.LineSegment(App.Vector(70.8, -71.6, 0), App.Vector(70.8, -73, 0)),  # 6
    Part.ArcOfCircle(Part.Circle(App.Vector(73.7, -73, 0), App.Vector(0, 0, 1), 2.9), math.radians(180), math.radians(360)),  # 7
    Part.LineSegment(App.Vector(76.5, -73, 0), App.Vector(76.5, -71.6, 0)),  # 8
    Part.LineSegment(App.Vector(76.5, -71.6, 0), App.Vector(81.9, -71.6, 0)),  # 9
    Part.LineSegment(App.Vector(81.9, -71.6, 0), App.Vector(81.9, -97, 0)),  # 10
    Part.LineSegment(App.Vector(81.9, -97, 0), App.Vector(76.5, -97, 0)),  # 11
    Part.LineSegment(App.Vector(65.7, -92.3, 0), App.Vector(81.7, -92.3, 0)),  # 12
    Part.LineSegment(App.Vector(81.7, -92.3, 0), App.Vector(81.7, -76.3, 0)),  # 13
    Part.LineSegment(App.Vector(81.7, -76.3, 0), App.Vector(65.7, -76.3, 0)),  # 14
    Part.LineSegment(App.Vector(65.7, -76.3, 0), App.Vector(65.7, -92.3, 0)),  # 15
], False)
sketch9.addConstraint([
    Sketcher.Constraint("Tangent", 0, 2, 1, 1),
    Sketcher.Constraint("Tangent", 1, 2, 2, 1),
    Sketcher.Constraint("Coincident", 2, 2, 3, 1),
    Sketcher.Constraint("Coincident", 3, 2, 4, 1),
    Sketcher.Constraint("Coincident", 4, 2, 5, 1),
    Sketcher.Constraint("Coincident", 5, 2, 6, 1),
    Sketcher.Constraint("Tangent", 6, 2, 7, 1),
    Sketcher.Constraint("Tangent", 7, 2, 8, 1),
    Sketcher.Constraint("Coincident", 8, 2, 9, 1),
    Sketcher.Constraint("Coincident", 9, 2, 10, 1),
    Sketcher.Constraint("Coincident", 10, 2, 11, 1),
    Sketcher.Constraint("Coincident", 11, 2, 0, 1),
    Sketcher.Constraint("Coincident", 12, 2, 13, 1),
    Sketcher.Constraint("Coincident", 13, 2, 14, 1),
    Sketcher.Constraint("Coincident", 14, 2, 15, 1),
    Sketcher.Constraint("Coincident", 15, 2, 12, 1),
    Sketcher.Constraint("Vertical", 0),
    Sketcher.Constraint("Vertical", 2),
    Sketcher.Constraint("Horizontal", 3),
    Sketcher.Constraint("Vertical", 4),
    Sketcher.Constraint("Horizontal", 5),
    Sketcher.Constraint("Vertical", 6),
    Sketcher.Constraint("Vertical", 8),
    Sketcher.Constraint("Horizontal", 9),
    Sketcher.Constraint("Vertical", 10),
    Sketcher.Constraint("Horizontal", 11),
    Sketcher.Constraint("Horizontal", 12),
    Sketcher.Constraint("Vertical", 13),
    Sketcher.Constraint("Horizontal", 14),
    Sketcher.Constraint("Vertical", 15),
    Sketcher.Constraint("Equal", 1, 7),
    Sketcher.Constraint("Horizontal", 5, 2, 8, 2),
    Sketcher.Constraint("Horizontal", 3, 2, 10, 2),
    Sketcher.Constraint("Vertical", 1, 3, 7, 3),
    Sketcher.Constraint("Equal", 5, 9),
    Sketcher.Constraint("Equal", 2, 6),
    Sketcher.Constraint("Equal", 14, 13),
    Sketcher.Constraint("DistanceX", -1, 1, 1, 3, Q("2.9 in")),
    Sketcher.Constraint("Radius", 1, Q("2.8876 mm")),
    Sketcher.Constraint("DistanceY", 1, 3, 7, 3, Q("0.892 in")),
    Sketcher.Constraint("DistanceX", 3, 2, 3, 1, Q("5.3199 mm")),
    Sketcher.Constraint("DistanceX", 12, 1, 12, 2, Q("16 mm")),
    Sketcher.Constraint("DistanceY", 0, 1, 0, 2, Q("1.3876 mm")),
    Sketcher.Constraint("DistanceX", -1, 1, 12, 2, Q("81.66 mm")),
    Sketcher.Constraint("DistanceY", 10, 2, 12, 2, Q("4.716 mm")),
    Sketcher.Constraint("DistanceY", 1, 3, -1, 1, Q("95.64063 mm")),
])
pad5 = doc.addObject("PartDesign::Pad", "Pad004")
body.addObject(pad5)
pad5.Profile = sketch9
pad5.Length = Q("0.194 in")

# Sketch on XY plane
sketch10 = doc.addObject("Sketcher::SketchObject", "Sketch009")
body.addObject(sketch10)
sketch10.AttachmentSupport = (doc.XY_Plane, [""])
sketch10.MapMode = "FlatFace"
sketch10.addGeometry([
    Part.LineSegment(App.Vector(66.5, -93, 0), App.Vector(66.5, -92.3, 0)),  # 0
    Part.LineSegment(App.Vector(66.5, -92.3, 0), App.Vector(71.2, -92.3, 0)),  # 1
    Part.LineSegment(App.Vector(71.2, -92.3, 0), App.Vector(71.2, -94.4, 0)),  # 2
    Part.LineSegment(App.Vector(71.2, -94.4, 0), App.Vector(67.8, -94.4, 0)),  # 3
    Part.ArcOfCircle(Part.Circle(App.Vector(67.8, -93, 0), App.Vector(0, 0, 1), 1.3), math.radians(180), math.radians(270)),  # 4
    Part.LineSegment(App.Vector(76.1, -92.3, 0), App.Vector(80.9, -92.3, 0)),  # 5
    Part.LineSegment(App.Vector(80.9, -92.3, 0), App.Vector(80.9, -93, 0)),  # 6
    Part.ArcOfCircle(Part.Circle(App.Vector(79.5, -93, 0), App.Vector(0, 0, 1), 1.3), math.radians(-90), math.radians(0)),  # 7
    Part.LineSegment(App.Vector(79.5, -94.4, 0), App.Vector(76.1, -94.4, 0)),  # 8
    Part.LineSegment(App.Vector(76.1, -94.4, 0), App.Vector(76.1, -92.3, 0)),  # 9
    Part.LineSegment(App.Vector(80.9, -75.6, 0), App.Vector(80.9, -76.3, 0)),  # 10
    Part.LineSegment(App.Vector(80.9, -76.3, 0), App.Vector(76.1, -76.3, 0)),  # 11
    Part.LineSegment(App.Vector(76.1, -76.3, 0), App.Vector(76.1, -74.2, 0)),  # 12
    Part.LineSegment(App.Vector(76.1, -74.2, 0), App.Vector(79.5, -74.2, 0)),  # 13
    Part.ArcOfCircle(Part.Circle(App.Vector(79.5, -75.6, 0), App.Vector(0, 0, 1), 1.3), math.radians(0), math.radians(90)),  # 14
    Part.LineSegment(App.Vector(71.2, -76.3, 0), App.Vector(66.5, -76.3, 0)),  # 15
    Part.LineSegment(App.Vector(66.5, -76.3, 0), App.Vector(66.5, -75.6, 0)),  # 16
    Part.ArcOfCircle(Part.Circle(App.Vector(67.8, -75.6, 0), App.Vector(0, 0, 1), 1.3), math.radians(90), math.radians(180)),  # 17
    Part.LineSegment(App.Vector(67.8, -74.2, 0), App.Vector(71.2, -74.2, 0)),  # 18
    Part.LineSegment(App.Vector(71.2, -74.2, 0), App.Vector(71.2, -76.3, 0)),  # 19
], False)
sketch10.addConstraint([
    Sketcher.Constraint("Coincident", 0, 2, 1, 1),
    Sketcher.Constraint("Coincident", 1, 2, 2, 1),
    Sketcher.Constraint("Coincident", 2, 2, 3, 1),
    Sketcher.Constraint("Tangent", 3, 2, 4, 2),
    Sketcher.Constraint("Tangent", 4, 1, 0, 1),
    Sketcher.Constraint("Coincident", 5, 2, 6, 1),
    Sketcher.Constraint("Tangent", 6, 2, 7, 2),
    Sketcher.Constraint("Tangent", 7, 1, 8, 1),
    Sketcher.Constraint("Coincident", 8, 2, 9, 1),
    Sketcher.Constraint("Coincident", 9, 2, 5, 1),
    Sketcher.Constraint("Coincident", 10, 2, 11, 1),
    Sketcher.Constraint("Coincident", 11, 2, 12, 1),
    Sketcher.Constraint("Coincident", 12, 2, 13, 1),
    Sketcher.Constraint("Tangent", 13, 2, 14, 2),
    Sketcher.Constraint("Tangent", 14, 1, 10, 1),
    Sketcher.Constraint("Coincident", 15, 2, 16, 1),
    Sketcher.Constraint("Tangent", 16, 2, 17, 2),
    Sketcher.Constraint("Tangent", 17, 1, 18, 1),
    Sketcher.Constraint("Coincident", 18, 2, 19, 1),
    Sketcher.Constraint("Coincident", 19, 2, 15, 1),
    Sketcher.Constraint("Vertical", 0),
    Sketcher.Constraint("Horizontal", 1),
    Sketcher.Constraint("Vertical", 2),
    Sketcher.Constraint("Horizontal", 3),
    Sketcher.Constraint("Horizontal", 5),
    Sketcher.Constraint("Vertical", 6),
    Sketcher.Constraint("Horizontal", 8),
    Sketcher.Constraint("Vertical", 9),
    Sketcher.Constraint("Vertical", 10),
    Sketcher.Constraint("Horizontal", 11),
    Sketcher.Constraint("Vertical", 12),
    Sketcher.Constraint("Horizontal", 13),
    Sketcher.Constraint("Horizontal", 15),
    Sketcher.Constraint("Vertical", 16),
    Sketcher.Constraint("Horizontal", 18),
    Sketcher.Constraint("Vertical", 19),
    Sketcher.Constraint("Equal", 4, 7),
    Sketcher.Constraint("Equal", 7, 14),
    Sketcher.Constraint("Equal", 14, 17),
    Sketcher.Constraint("Horizontal", 4, 3, 7, 3),
    Sketcher.Constraint("Horizontal", 14, 3, 17, 3),
    Sketcher.Constraint("Horizontal", 1, 2, 5, 2),
    Sketcher.Constraint("Horizontal", 11, 2, 15, 2),
    Sketcher.Constraint("Vertical", 7, 3, 14, 3),
    Sketcher.Constraint("Vertical", 4, 3, 17, 3),
    Sketcher.Constraint("Vertical", 9, 2, 11, 2),
    Sketcher.Constraint("Vertical", 2, 2, 18, 2),
    Sketcher.Constraint("Equal", 1, 5),
    Sketcher.Constraint("Equal", 6, 10),
    Sketcher.Constraint("Radius", 4, Q("0.0525 in")),
    Sketcher.Constraint("DistanceX", 1, 1, 1, 2, Q("0.1875 in")),
    Sketcher.Constraint("DistanceY", 0, 1, 0, 2, Q("0.7325 mm")),
    Sketcher.Constraint("DistanceY", 7, 3, 14, 3, Q("17.465 mm")),
    Sketcher.Constraint("DistanceY", 4, 3, -1, 1, Q("93.04473 mm")),
    Sketcher.Constraint("DistanceX", -1, 1, 4, 3, Q("67.794963 mm")),
    Sketcher.Constraint("DistanceX", -1, 1, 7, 3, Q("79.525037 mm")),
])
pad6 = doc.addObject("PartDesign::Pad", "Pad005")
body.addObject(pad6)
pad6.Profile = sketch10
pad6.Length = Q("0.125 in")
pad6.Reversed = True
doc.recompute()

chamfer = doc.addObject("PartDesign::Chamfer", "Chamfer")
body.addObject(chamfer)
chamfer.Base = (pad6, edges_at(pad6, [
    (68.843, -92.312, -3.175),
    (71.224, -93.345, -3.175),
    (69.509, -94.378, -3.175),
    (66.852, -93.988, -3.175),
    (66.461, -92.678, -3.175),
    (80.859, -92.678, -3.175),
    (80.468, -93.988, -3.175),
    (77.811, -94.378, -3.175),
    (76.096, -93.345, -3.175),
    (78.477, -92.312, -3.175),
    (80.468, -74.637, -3.175),
    (80.859, -75.946, -3.175),
    (78.477, -76.312, -3.175),
    (76.096, -75.279, -3.175),
    (77.811, -74.246, -3.175),
    (66.461, -75.946, -3.175),
    (66.852, -74.637, -3.175),
    (69.509, -74.246, -3.175),
    (71.224, -75.279, -3.175),
    (68.843, -76.312, -3.175),
]))
chamfer.Size = Q("0.02 in")

doc.recompute()
